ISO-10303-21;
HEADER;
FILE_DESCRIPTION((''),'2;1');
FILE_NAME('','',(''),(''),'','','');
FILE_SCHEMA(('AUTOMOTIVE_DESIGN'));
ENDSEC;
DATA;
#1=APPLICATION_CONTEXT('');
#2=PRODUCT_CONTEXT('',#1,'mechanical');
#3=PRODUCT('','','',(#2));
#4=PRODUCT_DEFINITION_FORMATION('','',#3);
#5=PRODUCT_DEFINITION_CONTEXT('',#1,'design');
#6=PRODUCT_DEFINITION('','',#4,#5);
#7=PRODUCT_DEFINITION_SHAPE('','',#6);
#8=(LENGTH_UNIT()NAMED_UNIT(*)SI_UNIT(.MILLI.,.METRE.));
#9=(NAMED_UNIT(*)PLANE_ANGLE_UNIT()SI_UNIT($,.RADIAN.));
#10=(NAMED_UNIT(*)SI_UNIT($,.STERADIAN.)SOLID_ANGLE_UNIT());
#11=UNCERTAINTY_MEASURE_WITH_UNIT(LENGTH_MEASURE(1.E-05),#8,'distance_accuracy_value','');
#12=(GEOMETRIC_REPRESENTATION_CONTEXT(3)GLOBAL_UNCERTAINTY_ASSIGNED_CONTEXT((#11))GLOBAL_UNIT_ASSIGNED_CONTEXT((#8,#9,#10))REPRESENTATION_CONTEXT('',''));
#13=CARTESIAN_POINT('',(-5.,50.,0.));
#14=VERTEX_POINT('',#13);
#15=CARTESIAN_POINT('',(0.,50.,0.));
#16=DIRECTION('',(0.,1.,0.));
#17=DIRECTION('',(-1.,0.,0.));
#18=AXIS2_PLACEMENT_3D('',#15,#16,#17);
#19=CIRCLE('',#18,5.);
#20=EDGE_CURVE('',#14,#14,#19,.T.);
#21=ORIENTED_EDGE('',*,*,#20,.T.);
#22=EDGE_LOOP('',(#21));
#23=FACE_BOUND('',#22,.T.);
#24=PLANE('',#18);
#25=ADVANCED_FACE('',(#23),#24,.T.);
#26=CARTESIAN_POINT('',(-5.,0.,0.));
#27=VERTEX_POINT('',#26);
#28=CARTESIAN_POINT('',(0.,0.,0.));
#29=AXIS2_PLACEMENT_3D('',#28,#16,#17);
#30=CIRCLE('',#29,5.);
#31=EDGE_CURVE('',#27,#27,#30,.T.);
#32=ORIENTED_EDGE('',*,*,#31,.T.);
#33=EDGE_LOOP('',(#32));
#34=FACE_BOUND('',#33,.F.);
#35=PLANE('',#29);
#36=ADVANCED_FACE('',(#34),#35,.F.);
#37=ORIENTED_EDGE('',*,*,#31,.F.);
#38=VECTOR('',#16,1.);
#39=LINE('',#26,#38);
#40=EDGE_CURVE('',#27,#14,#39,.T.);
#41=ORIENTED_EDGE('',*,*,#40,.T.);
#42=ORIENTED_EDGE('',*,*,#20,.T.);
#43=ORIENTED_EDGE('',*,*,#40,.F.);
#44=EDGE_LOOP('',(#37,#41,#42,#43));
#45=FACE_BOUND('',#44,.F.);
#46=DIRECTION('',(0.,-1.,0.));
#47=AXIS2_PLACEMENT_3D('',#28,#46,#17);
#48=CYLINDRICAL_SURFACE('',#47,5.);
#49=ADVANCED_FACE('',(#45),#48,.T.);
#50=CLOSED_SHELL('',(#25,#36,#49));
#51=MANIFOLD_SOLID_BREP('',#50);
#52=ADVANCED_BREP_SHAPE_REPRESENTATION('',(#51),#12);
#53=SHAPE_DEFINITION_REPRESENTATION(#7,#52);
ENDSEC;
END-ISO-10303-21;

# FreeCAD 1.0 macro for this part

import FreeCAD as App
import Part
import Sketcher
from FreeCAD import Vector

doc = App.newDocument("Part")
params = doc.addObject("Spreadsheet::Sheet", "Params")
for row, (alias, value) in enumerate([
    ("sketch1_diameter", "10 mm"),
    ("pad1_length", "50 mm"),
], start=1):
    params.set(f"A{row}", alias)
    params.set(f"B{row}", "=" + value)
    params.setAlias(f"B{row}", alias)

body = doc.addObject("PartDesign::Body", "Body")

# Sketch on XZ plane
sketch1 = doc.addObject("Sketcher::SketchObject", "Sketch")
body.addObject(sketch1)
sketch1.AttachmentSupport = (doc.XZ_Plane, [""])
sketch1.MapMode = "FlatFace"
sketch1.addGeometry(Part.Circle(Vector(0, 0, 0), Vector(0, 0, 1), 5), False)
sketch1.addConstraint([
    Sketcher.Constraint("Coincident", 0, 3, -1, 1),
    Sketcher.Constraint("Diameter", 0, 10.0),
])
sketch1.setExpression("Constraints[1]", "Params.sketch1_diameter")
pad1 = doc.addObject("PartDesign::Pad", "Pad")
body.addObject(pad1)
pad1.Profile = sketch1
pad1.setExpression("Length", "Params.pad1_length")
pad1.Reversed = True

doc.recompute()
